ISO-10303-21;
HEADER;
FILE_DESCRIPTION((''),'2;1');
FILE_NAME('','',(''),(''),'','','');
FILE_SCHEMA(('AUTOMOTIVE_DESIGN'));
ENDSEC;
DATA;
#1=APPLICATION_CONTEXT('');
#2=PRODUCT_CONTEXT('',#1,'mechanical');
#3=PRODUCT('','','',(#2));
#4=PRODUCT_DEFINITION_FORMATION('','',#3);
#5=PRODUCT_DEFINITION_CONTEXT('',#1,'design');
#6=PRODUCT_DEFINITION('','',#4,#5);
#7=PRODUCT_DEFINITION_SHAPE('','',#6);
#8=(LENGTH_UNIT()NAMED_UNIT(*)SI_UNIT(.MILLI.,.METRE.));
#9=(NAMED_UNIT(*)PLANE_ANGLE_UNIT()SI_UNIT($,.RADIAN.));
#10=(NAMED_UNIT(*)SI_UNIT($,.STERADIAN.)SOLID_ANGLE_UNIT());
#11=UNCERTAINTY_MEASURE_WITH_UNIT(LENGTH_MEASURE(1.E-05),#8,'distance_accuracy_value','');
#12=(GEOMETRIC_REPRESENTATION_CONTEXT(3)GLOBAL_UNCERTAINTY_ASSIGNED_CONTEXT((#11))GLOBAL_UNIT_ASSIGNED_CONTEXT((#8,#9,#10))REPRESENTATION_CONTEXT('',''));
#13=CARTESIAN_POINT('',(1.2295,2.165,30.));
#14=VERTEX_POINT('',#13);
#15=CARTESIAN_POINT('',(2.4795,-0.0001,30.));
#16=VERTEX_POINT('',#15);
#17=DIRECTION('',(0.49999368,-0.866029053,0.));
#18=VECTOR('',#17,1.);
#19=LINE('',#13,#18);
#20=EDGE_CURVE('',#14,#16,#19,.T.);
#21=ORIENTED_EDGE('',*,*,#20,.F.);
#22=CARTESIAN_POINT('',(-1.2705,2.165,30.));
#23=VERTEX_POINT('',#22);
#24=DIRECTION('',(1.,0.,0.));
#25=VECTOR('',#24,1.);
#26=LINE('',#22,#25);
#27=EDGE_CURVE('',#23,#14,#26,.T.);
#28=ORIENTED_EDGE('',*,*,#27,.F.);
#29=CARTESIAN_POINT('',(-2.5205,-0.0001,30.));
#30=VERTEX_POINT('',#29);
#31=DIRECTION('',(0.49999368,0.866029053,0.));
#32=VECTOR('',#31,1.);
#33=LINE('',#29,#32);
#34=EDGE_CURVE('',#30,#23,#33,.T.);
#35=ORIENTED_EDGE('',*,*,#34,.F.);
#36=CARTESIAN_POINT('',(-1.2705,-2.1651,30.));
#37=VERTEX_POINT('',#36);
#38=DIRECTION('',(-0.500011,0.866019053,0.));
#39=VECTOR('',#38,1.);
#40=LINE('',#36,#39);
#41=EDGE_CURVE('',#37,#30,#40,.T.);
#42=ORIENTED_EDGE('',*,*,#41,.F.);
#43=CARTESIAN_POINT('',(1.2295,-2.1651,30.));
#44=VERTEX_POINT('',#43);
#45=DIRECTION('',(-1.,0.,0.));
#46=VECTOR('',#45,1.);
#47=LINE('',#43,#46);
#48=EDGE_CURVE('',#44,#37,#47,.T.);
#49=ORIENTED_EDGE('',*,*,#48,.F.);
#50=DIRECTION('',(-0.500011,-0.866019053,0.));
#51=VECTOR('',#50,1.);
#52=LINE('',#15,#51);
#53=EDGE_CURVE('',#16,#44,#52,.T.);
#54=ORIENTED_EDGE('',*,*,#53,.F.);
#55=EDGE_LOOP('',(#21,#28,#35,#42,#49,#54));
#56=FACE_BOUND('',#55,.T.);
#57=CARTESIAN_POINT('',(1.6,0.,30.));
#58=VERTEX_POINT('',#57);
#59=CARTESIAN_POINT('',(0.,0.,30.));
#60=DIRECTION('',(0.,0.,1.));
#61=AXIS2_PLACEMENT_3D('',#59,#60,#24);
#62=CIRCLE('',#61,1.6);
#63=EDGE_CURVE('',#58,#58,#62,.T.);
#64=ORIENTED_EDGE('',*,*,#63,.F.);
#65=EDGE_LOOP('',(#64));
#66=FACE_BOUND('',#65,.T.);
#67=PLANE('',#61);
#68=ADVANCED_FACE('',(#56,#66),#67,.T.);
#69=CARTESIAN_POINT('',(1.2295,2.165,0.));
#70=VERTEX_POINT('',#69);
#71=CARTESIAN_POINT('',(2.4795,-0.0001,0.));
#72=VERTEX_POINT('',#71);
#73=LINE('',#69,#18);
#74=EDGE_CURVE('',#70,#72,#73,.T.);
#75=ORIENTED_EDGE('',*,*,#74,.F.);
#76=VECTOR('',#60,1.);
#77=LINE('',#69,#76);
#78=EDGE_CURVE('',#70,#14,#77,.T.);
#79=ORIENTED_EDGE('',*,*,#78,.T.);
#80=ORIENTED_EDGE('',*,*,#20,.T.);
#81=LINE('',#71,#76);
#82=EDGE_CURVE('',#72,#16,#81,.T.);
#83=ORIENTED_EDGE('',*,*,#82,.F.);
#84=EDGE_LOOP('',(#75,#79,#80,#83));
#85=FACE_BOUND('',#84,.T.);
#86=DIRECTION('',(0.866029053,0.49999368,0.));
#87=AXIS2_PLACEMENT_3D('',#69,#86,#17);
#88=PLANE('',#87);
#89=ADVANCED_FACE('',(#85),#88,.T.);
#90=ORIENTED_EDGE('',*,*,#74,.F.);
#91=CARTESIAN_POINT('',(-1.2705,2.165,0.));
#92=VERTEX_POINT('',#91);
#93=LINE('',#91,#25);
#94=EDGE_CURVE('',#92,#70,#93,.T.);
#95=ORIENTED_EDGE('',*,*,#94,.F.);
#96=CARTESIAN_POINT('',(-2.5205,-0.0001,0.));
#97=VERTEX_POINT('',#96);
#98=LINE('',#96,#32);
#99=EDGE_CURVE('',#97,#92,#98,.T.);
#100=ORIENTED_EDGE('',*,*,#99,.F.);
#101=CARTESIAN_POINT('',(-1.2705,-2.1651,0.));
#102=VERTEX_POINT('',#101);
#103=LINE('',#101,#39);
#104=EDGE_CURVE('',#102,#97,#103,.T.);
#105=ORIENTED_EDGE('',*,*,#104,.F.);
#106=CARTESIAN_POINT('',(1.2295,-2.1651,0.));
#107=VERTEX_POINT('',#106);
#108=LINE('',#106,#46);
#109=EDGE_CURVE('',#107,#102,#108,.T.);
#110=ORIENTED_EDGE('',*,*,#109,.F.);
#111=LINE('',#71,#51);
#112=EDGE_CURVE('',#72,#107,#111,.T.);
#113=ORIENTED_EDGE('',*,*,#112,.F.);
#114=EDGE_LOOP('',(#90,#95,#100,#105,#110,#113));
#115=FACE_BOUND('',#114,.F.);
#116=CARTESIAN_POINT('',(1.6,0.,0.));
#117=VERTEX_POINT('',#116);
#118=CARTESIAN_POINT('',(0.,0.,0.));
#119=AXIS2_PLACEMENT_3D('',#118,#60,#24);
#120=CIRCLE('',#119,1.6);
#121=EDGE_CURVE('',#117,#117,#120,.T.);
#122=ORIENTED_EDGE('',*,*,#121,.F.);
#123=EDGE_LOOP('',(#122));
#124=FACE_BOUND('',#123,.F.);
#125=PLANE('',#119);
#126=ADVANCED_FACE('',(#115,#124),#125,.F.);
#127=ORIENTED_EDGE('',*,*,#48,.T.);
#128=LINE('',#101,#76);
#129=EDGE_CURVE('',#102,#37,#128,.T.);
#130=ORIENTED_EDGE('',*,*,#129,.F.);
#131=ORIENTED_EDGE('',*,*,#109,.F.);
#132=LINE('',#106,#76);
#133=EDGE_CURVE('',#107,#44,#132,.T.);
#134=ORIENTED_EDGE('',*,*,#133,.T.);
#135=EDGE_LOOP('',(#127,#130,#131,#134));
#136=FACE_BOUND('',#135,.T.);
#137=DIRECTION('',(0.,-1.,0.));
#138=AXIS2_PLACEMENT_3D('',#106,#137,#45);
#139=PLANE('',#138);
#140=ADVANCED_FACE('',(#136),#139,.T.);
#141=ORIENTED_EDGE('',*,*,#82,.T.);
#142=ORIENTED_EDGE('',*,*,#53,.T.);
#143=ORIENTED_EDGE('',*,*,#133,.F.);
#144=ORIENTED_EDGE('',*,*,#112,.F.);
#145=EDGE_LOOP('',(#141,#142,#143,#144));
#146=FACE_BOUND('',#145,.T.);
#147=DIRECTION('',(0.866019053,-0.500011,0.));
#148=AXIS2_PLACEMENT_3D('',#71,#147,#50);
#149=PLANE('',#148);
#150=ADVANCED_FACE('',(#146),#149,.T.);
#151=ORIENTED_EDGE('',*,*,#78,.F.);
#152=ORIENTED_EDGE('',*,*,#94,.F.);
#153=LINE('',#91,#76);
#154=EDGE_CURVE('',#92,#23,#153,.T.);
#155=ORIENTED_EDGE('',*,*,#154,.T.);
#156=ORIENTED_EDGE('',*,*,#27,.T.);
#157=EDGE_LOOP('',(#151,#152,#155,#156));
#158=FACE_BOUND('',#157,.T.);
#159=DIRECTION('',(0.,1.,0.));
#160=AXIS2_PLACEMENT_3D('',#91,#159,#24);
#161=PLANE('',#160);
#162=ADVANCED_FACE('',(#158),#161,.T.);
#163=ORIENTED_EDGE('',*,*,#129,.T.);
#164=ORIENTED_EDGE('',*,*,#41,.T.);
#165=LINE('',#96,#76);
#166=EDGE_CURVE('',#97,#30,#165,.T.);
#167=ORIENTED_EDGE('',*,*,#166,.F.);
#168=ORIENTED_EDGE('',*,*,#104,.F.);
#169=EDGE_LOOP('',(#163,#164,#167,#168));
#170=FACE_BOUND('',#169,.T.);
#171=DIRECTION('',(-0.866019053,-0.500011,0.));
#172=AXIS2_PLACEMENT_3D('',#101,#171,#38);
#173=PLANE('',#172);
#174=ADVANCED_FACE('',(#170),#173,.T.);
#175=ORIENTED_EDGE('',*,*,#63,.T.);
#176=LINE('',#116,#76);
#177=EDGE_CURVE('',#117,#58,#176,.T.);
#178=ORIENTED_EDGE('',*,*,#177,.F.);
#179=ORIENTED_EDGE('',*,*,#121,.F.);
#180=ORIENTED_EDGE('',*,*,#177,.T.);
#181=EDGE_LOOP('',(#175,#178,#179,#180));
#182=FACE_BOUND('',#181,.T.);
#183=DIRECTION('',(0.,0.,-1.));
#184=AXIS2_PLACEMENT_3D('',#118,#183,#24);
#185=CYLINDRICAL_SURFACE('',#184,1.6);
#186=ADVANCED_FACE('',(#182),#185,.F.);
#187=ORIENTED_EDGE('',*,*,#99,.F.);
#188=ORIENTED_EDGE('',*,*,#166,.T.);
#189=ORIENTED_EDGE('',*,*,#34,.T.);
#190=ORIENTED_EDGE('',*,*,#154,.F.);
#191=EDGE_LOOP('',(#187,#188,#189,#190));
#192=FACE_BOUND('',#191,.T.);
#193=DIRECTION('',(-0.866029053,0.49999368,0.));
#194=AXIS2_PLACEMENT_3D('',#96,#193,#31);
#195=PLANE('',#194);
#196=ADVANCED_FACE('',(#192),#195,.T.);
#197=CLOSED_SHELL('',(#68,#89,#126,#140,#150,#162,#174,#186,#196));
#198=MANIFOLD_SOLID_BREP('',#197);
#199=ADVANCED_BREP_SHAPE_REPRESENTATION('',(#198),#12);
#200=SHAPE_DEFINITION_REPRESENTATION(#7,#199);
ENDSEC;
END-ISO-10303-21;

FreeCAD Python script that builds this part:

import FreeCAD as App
import Part
import Sketcher
from FreeCAD import Vector
Q = App.Units.Quantity


def add_polygon(sketch, points):
    """Adds a closed chain of lines whose ends are joined by coincident constraints."""
    first, n = sketch.GeometryCount, len(points)
    for a, b in zip(points, points[1:] + points[:1]):
        sketch.addGeometry(Part.LineSegment(App.Vector(*a, 0), App.Vector(*b, 0)), False)
    for i in range(n):
        sketch.addConstraint(Sketcher.Constraint("Coincident", first + i, 2, first + (i + 1) % n, 1))

doc = App.newDocument("Part")
body = doc.addObject("PartDesign::Body", "Body")

# Sketch on XY plane
sketch1 = body.newObject("Sketcher::SketchObject", "Sketch")
sketch1.AttachmentSupport = (doc.getObject("XY_Plane"), [""])
sketch1.MapMode = "FlatFace"
add_polygon(sketch1, [(1.2, 2.2), (-1.3, 2.2), (-2.5, 0), (-1.3, -2.2), (1.2, -2.2), (2.5, 0)])  # lines 0-5
sketch1.addGeometry(Part.Circle(Vector(0, 0, 0), Vector(0, 0, 1), 1.6), False)  # 6
sketch1.addConstraint([
    Sketcher.Constraint("Horizontal", 0),
    Sketcher.Constraint("Horizontal", 3),
    Sketcher.Constraint("Coincident", 6, 3, -1, 1),
    Sketcher.Constraint("Symmetric", 0, 2, 2, 2, -1),
    Sketcher.Constraint("PointOnObject", 1, 2, -1),
    Sketcher.Constraint("PointOnObject", 4, 2, -1),
    Sketcher.Constraint("Parallel", 1, 4),
    Sketcher.Constraint("Parallel", 2, 5),
    Sketcher.Constraint("Diameter", 6, 3.2),
    Sketcher.Constraint("DistanceX", 0, 2, 0, 1, 2.5),
    Sketcher.Constraint("Distance", 1, 2.5),
    Sketcher.Constraint("Angle", 1, Q("-119.9996 deg")),
    Sketcher.Constraint("DistanceX", 0, 2, -1, 1, 1.2705),
])
pad1 = body.newObject("PartDesign::Pad", "Pad")
pad1.Profile = sketch1
pad1.Length = 30

doc.recompute()
